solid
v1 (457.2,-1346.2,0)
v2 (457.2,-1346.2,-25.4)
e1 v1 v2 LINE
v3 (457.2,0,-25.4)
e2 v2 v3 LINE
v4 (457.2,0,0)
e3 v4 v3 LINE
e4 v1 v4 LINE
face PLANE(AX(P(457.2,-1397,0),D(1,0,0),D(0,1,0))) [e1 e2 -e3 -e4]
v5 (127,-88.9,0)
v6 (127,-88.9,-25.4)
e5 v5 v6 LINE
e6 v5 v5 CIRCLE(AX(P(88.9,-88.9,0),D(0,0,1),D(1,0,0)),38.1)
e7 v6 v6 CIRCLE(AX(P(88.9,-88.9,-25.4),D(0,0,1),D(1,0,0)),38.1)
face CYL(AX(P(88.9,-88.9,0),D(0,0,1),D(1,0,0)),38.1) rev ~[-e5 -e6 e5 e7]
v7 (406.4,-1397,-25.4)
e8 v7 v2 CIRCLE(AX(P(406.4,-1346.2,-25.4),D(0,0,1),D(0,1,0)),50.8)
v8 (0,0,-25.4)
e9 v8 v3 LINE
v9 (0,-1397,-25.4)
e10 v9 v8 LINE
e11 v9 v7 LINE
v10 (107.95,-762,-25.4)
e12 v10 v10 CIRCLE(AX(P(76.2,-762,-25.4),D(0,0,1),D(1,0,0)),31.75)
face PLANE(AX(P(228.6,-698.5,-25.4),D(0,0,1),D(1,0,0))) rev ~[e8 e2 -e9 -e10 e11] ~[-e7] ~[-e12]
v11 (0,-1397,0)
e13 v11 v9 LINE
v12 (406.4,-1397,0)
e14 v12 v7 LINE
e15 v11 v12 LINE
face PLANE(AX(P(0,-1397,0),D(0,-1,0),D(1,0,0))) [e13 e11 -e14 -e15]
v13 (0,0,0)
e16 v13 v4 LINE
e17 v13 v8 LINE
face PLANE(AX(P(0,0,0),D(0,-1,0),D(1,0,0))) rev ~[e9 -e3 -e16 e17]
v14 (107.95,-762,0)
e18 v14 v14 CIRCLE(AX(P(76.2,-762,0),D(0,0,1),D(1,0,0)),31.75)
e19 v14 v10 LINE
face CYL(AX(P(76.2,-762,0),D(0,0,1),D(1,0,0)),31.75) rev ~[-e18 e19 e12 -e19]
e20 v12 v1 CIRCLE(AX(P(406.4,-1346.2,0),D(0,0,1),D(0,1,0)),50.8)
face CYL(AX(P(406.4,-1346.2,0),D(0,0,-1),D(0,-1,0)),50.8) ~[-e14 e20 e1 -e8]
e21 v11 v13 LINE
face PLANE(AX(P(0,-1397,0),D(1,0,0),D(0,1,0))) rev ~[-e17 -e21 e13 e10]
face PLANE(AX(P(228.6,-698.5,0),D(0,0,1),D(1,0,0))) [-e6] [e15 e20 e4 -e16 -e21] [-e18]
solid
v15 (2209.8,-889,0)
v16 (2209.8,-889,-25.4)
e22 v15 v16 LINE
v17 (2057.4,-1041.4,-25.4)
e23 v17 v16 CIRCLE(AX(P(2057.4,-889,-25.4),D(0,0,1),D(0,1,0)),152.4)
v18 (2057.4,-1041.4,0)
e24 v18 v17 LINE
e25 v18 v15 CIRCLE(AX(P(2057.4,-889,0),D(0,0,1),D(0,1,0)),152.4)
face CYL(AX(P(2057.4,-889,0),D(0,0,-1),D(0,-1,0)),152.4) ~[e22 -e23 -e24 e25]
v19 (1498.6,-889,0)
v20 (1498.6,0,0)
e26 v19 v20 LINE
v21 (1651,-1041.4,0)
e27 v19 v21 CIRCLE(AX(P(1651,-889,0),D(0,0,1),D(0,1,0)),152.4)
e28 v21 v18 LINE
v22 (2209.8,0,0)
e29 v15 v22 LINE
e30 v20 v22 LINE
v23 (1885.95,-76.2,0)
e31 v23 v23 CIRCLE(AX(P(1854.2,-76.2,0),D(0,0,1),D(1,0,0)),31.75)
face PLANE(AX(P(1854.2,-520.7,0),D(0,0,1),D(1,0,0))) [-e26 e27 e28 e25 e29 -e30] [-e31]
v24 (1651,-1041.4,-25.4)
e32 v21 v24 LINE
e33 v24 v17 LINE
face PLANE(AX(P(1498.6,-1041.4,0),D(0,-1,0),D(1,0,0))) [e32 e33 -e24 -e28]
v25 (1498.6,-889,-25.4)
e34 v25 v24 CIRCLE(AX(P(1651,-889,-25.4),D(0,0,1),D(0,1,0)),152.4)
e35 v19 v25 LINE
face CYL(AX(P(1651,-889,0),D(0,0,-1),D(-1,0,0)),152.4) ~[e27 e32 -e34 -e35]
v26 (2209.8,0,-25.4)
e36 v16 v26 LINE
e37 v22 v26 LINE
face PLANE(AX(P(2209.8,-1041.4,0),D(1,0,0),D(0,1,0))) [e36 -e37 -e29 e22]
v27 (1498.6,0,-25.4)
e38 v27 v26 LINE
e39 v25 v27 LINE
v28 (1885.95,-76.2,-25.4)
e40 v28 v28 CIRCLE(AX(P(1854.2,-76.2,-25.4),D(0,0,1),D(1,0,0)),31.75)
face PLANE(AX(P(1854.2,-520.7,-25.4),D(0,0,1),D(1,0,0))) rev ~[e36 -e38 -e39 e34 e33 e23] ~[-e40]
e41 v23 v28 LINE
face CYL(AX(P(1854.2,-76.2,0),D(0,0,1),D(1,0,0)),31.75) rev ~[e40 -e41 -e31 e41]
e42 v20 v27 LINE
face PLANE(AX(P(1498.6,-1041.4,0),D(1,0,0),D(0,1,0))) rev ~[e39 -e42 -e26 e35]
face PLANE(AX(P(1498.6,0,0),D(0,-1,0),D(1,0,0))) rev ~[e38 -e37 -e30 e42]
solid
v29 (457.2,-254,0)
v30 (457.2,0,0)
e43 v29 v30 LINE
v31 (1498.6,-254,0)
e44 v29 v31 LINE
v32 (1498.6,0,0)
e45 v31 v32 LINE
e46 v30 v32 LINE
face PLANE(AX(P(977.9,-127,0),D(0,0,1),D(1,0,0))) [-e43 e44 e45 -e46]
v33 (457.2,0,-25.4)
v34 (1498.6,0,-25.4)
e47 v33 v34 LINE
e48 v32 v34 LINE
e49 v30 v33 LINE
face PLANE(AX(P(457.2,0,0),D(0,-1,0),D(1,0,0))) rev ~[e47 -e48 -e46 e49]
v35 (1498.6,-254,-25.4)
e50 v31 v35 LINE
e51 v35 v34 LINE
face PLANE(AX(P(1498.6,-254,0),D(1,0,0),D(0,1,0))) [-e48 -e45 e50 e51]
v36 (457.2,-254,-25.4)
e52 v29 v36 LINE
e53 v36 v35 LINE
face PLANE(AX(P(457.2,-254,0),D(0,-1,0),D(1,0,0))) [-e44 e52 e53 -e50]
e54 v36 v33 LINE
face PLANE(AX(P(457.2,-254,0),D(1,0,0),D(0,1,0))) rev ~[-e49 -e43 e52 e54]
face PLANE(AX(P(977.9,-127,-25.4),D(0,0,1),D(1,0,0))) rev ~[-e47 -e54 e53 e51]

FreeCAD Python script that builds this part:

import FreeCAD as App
import Part
import Sketcher
from FreeCAD import Vector
Q = App.Units.Quantity


def edges_at(feature, points):
    """Names of the edges that pass closest to the given points."""
    edges = feature.Shape.Edges
    near = lambda p: min(range(len(edges)), key=lambda i: edges[i].distToShape(Part.Vertex(*p))[0])
    return sorted({f"Edge{near(p) + 1}" for p in points})


def add_polygon(sketch, points):
    """Adds a closed chain of lines whose ends are joined by coincident constraints."""
    first, n = sketch.GeometryCount, len(points)
    for a, b in zip(points, points[1:] + points[:1]):
        sketch.addGeometry(Part.LineSegment(App.Vector(*a, 0), App.Vector(*b, 0)), False)
    for i in range(n):
        sketch.addConstraint(Sketcher.Constraint("Coincident", first + i, 2, first + (i + 1) % n, 1))

doc = App.newDocument("Part")
body = doc.addObject("PartDesign::Body", "Body")

# Sketch on XY plane
sketch1 = doc.addObject("Sketcher::SketchObject", "Sketch")
body.addObject(sketch1)
sketch1.AttachmentSupport = (doc.XY_Plane, [""])
sketch1.MapMode = "FlatFace"
add_polygon(sketch1, [(0, 0), (0, -1397), (457.2, -1397), (457.2, 0)])  # lines 0-3
sketch1.addConstraint([
    Sketcher.Constraint("Vertical", 0),
    Sketcher.Constraint("Horizontal", 1),
    Sketcher.Constraint("Vertical", 2),
    Sketcher.Constraint("Horizontal", 3),
    Sketcher.Constraint("Coincident", 3, 2, -1, 1),
    Sketcher.Constraint("DistanceX", 1, 1, 1, 2, Q("18 in")),
    Sketcher.Constraint("DistanceY", 0, 2, 0, 1, Q("55 in")),
])
pad1 = doc.addObject("PartDesign::Pad", "Pad")
body.addObject(pad1)
pad1.Profile = sketch1
pad1.Length = Q("1 in")
pad1.Reversed = True
doc.recompute()

fillet = doc.addObject("PartDesign::Fillet", "Fillet")
body.addObject(fillet)
fillet.Base = (pad1, edges_at(pad1, [(457.2, -1397, -12.7)]))
fillet.Radius = Q("2 in")
body2 = doc.addObject("PartDesign::Body", "Body001")

# Sketch on XY plane
sketch2 = doc.addObject("Sketcher::SketchObject", "Sketch001")
body2.addObject(sketch2)
sketch2.AttachmentSupport = (doc.getObject("XY_Plane001"), [""])
sketch2.MapMode = "FlatFace"
add_polygon(sketch2, [(457.2, 0), (457.2, -254), (1498.6, -254), (1498.6, 0)])  # lines 0-3
sketch2.addConstraint([
    Sketcher.Constraint("Vertical", 0),
    Sketcher.Constraint("Horizontal", 1),
    Sketcher.Constraint("Vertical", 2),
    Sketcher.Constraint("Horizontal", 3),
    Sketcher.Constraint("PointOnObject", 2, 2, -1),
    Sketcher.Constraint("DistanceX", 1, 1, 1, 2, Q("41 in")),
    Sketcher.Constraint("DistanceY", 0, 2, 0, 1, Q("10 in")),
    Sketcher.Constraint("DistanceX", -1, 1, 0, 2, Q("18 in")),
])
pad2 = doc.addObject("PartDesign::Pad", "Pad001")
body2.addObject(pad2)
pad2.Profile = sketch2
pad2.Length = Q("1 in")
pad2.Reversed = True
body3 = doc.addObject("PartDesign::Body", "Body002")

# Sketch on XY plane
sketch3 = doc.addObject("Sketcher::SketchObject", "Sketch002")
body3.addObject(sketch3)
sketch3.AttachmentSupport = (doc.getObject("XY_Plane002"), [""])
sketch3.MapMode = "FlatFace"
add_polygon(sketch3, [(1498.6, 0), (1498.6, -1041.4), (2209.8, -1041.4), (2209.8, 0)])  # lines 0-3
sketch3.addConstraint([
    Sketcher.Constraint("Vertical", 0),
    Sketcher.Constraint("Horizontal", 1),
    Sketcher.Constraint("Vertical", 2),
    Sketcher.Constraint("Horizontal", 3),
    Sketcher.Constraint("PointOnObject", 2, 2, -1),
    Sketcher.Constraint("DistanceX", 1, 1, 1, 2, Q("28 in")),
    Sketcher.Constraint("DistanceY", 0, 2, 0, 1, Q("41 in")),
    Sketcher.Constraint("DistanceX", -1, 1, 0, 2, Q("59 in")),
])
pad3 = doc.addObject("PartDesign::Pad", "Pad002")
body3.addObject(pad3)
pad3.Profile = sketch3
pad3.Length = Q("1 in")
pad3.Reversed = True
doc.recompute()

fillet2 = doc.addObject("PartDesign::Fillet", "Fillet001")
body3.addObject(fillet2)
fillet2.Base = (pad3, edges_at(pad3, [(2209.8, -1041.4, -12.7), (1498.6, -1041.4, -12.7)]))
fillet2.Radius = Q("6 in")
body4 = doc.addObject("PartDesign::Body", "Body003")
body4.AllowCompound = True

# Sketch on XY plane
sketch4 = doc.addObject("Sketcher::SketchObject", "Sketch003")
body4.addObject(sketch4)
sketch4.AttachmentSupport = (doc.getObject("XY_Plane003"), [""])
sketch4.MapMode = "FlatFace"
sketch4.addGeometry([
    Part.Circle(Vector(88.9, -88.9, 0), Vector(0, 0, 1), 38.1),
    Part.Circle(Vector(1854.2, -76.2, 0), Vector(0, 0, 1), 31.75),
    Part.Circle(Vector(76.2, -762, 0), Vector(0, 0, 1), 31.75),
], False)
sketch4.addConstraint([
    Sketcher.Constraint("Equal", 1, 2),
    Sketcher.Constraint("Diameter", 0, Q("3 in")),
    Sketcher.Constraint("Diameter", 1, Q("2.5 in")),
    Sketcher.Constraint("DistanceX", -1, 1, 1, 3, Q("73 in")),
    Sketcher.Constraint("DistanceY", 1, 3, -1, 1, Q("3 in")),
    Sketcher.Constraint("DistanceX", -1, 1, 2, 3, Q("3 in")),
    Sketcher.Constraint("DistanceY", 2, 3, -1, 1, Q("30 in")),
    Sketcher.Constraint("DistanceX", -1, 1, 0, 3, Q("3.5 in")),
    Sketcher.Constraint("DistanceY", 0, 3, -1, 1, Q("3.5 in")),
])
pad4 = doc.addObject("PartDesign::Pad", "Pad003")
body4.addObject(pad4)
pad4.Profile = sketch4
pad4.Length = Q("1 in")
pad4.Reversed = True
doc.recompute()

body5 = doc.addObject("PartDesign::Body", "Body004")
body5.BaseFeature = body4
boolean = doc.addObject("PartDesign::Boolean", "Boolean")
body.addObject(boolean)
boolean.Type = "Cut"
boolean.addObjects([body5])
doc.recompute()

boolean2 = doc.addObject("PartDesign::Boolean", "Boolean001")
body3.addObject(boolean2)
boolean2.Type = "Cut"
boolean2.addObjects([body4])

doc.recompute()
